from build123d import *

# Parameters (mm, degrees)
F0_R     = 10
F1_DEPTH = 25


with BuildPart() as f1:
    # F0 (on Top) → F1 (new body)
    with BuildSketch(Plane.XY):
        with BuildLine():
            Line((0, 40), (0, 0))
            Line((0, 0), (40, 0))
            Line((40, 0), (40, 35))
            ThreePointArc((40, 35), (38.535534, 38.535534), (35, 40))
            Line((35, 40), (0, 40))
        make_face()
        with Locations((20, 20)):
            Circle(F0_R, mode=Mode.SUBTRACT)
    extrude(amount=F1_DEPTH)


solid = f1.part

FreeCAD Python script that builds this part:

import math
import FreeCAD as App
import Part
import Sketcher

doc = App.newDocument("Part")
body = doc.addObject("PartDesign::Body", "Body")

# Sketch on XY plane
sketch1 = body.newObject("Sketcher::SketchObject", "Sketch")
sketch1.AttachmentSupport = (doc.getObject("XY_Plane"), [""])
sketch1.MapMode = "FlatFace"
sketch1.addGeometry(Part.LineSegment(App.Vector(0, 40, 0), App.Vector(0, 0, 0)), False)
sketch1.addGeometry(Part.LineSegment(App.Vector(0, 0, 0), App.Vector(40, 0, 0)), False)
sketch1.addGeometry(Part.LineSegment(App.Vector(40, 0, 0), App.Vector(40, 35, 0)), False)
sketch1.addGeometry(Part.ArcOfCircle(Part.Circle(App.Vector(35, 35, 0), App.Vector(0, 0, 1), 5), math.radians(0), math.radians(90)), False)
sketch1.addGeometry(Part.LineSegment(App.Vector(35, 40, 0), App.Vector(0, 40, 0)), False)
sketch1.addGeometry(Part.Circle(App.Vector(20, 20, 0), App.Vector(0, 0, 1), 10), False)
sketch1.addConstraint(Sketcher.Constraint("Coincident", 0, 2, 1, 1))
sketch1.addConstraint(Sketcher.Constraint("Coincident", 1, 2, 2, 1))
sketch1.addConstraint(Sketcher.Constraint("Tangent", 2, 2, 3, 1))
sketch1.addConstraint(Sketcher.Constraint("Tangent", 3, 2, 4, 1))
sketch1.addConstraint(Sketcher.Constraint("Coincident", 4, 2, 0, 1))
sketch1.addConstraint(Sketcher.Constraint("Vertical", 0))
sketch1.addConstraint(Sketcher.Constraint("Horizontal", 1))
sketch1.addConstraint(Sketcher.Constraint("Vertical", 2))
sketch1.addConstraint(Sketcher.Constraint("Horizontal", 4))
sketch1.addConstraint(Sketcher.Constraint("Coincident", 0, 2, -1, 1))
sketch1.addConstraint(Sketcher.Constraint("Equal", 1, 0))
sketch1.addConstraint(Sketcher.Constraint("Diameter", 5, 20.0))
sketch1.addConstraint(Sketcher.Constraint("Radius", 3, 5.0))
sketch1.addConstraint(Sketcher.Constraint("DistanceX", 1, 1, 1, 2, 40.0))
sketch1.addConstraint(Sketcher.Constraint("DistanceX", -1, 1, 5, 3, 20.0))
sketch1.addConstraint(Sketcher.Constraint("DistanceY", -1, 1, 5, 3, 20.0))
pad1 = body.newObject("PartDesign::Pad", "Pad")
pad1.Profile = sketch1
pad1.Length = 25

doc.recompute()
